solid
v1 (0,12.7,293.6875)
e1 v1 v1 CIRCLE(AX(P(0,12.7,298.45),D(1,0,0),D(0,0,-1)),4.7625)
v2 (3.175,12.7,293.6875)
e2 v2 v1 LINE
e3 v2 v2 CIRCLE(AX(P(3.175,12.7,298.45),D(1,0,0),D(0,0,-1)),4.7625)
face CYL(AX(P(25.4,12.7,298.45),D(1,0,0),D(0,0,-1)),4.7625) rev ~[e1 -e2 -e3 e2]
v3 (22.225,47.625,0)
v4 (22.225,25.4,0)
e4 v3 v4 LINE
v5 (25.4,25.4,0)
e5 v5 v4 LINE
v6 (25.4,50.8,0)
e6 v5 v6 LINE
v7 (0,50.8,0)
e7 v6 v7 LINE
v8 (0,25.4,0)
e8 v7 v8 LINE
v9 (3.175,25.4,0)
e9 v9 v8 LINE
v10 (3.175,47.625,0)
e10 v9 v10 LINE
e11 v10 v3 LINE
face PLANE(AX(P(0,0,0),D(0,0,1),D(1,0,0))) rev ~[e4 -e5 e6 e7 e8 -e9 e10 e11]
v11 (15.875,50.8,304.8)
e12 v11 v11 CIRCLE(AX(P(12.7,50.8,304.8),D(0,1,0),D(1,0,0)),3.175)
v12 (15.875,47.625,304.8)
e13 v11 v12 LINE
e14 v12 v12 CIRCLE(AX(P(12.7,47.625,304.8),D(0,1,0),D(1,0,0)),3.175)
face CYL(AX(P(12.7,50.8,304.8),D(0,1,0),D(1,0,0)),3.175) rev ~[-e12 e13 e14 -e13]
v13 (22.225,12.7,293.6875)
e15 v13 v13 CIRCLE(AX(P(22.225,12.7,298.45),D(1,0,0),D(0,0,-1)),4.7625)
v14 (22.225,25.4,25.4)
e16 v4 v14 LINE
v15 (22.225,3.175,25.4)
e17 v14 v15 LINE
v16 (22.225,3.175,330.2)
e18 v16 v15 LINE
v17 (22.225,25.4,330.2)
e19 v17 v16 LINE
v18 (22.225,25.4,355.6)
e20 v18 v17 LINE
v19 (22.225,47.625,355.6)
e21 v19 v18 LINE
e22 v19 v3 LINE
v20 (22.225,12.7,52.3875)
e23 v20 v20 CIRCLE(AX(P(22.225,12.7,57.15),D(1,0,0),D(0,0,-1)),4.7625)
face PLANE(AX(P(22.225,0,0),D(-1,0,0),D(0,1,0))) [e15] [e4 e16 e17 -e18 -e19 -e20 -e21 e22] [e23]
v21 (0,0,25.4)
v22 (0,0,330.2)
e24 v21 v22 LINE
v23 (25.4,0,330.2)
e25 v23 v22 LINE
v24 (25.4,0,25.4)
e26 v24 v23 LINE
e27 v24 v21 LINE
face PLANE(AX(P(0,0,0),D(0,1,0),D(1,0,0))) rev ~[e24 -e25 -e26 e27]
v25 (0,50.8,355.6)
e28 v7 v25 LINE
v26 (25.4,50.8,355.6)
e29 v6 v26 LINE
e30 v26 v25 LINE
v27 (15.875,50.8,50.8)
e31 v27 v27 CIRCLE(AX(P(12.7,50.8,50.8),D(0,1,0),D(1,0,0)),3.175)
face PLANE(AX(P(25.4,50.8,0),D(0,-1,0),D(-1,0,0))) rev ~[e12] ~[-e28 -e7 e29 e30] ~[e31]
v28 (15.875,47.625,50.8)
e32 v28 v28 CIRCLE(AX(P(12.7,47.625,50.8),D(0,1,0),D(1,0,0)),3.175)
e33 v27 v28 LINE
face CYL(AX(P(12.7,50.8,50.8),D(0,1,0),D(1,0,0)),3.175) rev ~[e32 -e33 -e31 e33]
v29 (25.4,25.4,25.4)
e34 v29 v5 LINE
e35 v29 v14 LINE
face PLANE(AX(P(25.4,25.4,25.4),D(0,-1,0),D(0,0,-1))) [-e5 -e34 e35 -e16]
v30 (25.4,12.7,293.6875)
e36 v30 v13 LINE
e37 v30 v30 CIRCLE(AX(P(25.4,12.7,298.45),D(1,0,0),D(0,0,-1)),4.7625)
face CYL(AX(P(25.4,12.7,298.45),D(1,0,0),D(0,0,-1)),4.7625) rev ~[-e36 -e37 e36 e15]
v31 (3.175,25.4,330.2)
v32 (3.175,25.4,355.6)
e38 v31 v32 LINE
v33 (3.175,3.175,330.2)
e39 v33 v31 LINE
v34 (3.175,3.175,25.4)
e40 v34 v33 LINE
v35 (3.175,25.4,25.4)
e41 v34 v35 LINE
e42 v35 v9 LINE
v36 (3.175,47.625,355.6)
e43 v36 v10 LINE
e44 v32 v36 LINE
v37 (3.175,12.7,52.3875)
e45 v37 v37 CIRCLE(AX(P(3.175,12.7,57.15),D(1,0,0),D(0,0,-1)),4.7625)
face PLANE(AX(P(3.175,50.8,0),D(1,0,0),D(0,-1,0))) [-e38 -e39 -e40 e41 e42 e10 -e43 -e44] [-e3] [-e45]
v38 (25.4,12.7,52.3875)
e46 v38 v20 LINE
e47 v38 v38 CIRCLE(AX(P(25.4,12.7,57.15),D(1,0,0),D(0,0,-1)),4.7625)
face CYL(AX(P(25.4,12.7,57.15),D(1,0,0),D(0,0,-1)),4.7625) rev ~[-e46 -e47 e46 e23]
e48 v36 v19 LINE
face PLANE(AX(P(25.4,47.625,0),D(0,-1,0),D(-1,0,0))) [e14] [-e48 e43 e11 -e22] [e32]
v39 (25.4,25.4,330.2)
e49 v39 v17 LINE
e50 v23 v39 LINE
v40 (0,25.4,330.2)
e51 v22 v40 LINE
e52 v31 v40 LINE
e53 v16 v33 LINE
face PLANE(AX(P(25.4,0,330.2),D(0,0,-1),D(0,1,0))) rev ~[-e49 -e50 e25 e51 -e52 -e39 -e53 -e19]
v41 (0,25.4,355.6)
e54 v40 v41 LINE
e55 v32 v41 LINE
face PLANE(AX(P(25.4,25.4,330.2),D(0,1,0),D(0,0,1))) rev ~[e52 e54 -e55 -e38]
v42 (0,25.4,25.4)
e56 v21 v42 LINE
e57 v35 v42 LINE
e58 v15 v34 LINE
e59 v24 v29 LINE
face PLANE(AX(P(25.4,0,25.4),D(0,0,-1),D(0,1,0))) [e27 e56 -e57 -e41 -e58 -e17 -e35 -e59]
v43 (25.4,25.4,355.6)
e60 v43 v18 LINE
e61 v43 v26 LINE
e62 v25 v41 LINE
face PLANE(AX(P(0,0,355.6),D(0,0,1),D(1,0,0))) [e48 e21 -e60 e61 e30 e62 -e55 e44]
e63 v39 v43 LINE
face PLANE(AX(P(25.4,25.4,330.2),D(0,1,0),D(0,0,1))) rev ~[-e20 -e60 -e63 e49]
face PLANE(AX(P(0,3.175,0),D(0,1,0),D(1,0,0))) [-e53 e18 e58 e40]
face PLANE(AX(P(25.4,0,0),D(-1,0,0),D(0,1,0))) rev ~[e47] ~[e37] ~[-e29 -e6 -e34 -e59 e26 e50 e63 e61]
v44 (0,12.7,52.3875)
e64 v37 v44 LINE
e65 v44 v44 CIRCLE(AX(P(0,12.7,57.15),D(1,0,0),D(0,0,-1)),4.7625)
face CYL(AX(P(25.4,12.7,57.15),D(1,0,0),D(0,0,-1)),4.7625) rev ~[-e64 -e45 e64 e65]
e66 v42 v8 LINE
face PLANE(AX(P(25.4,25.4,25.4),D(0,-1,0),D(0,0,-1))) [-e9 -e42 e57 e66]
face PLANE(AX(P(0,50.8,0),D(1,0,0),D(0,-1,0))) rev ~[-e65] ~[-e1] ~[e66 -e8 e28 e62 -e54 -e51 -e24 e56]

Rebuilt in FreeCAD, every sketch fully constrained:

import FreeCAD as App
import Part
import Sketcher
from FreeCAD import Vector
Q = App.Units.Quantity


def faces_at(feature, points):
    """Names of the faces that lie closest to the given points."""
    faces = feature.Shape.Faces
    near = lambda p: min(range(len(faces)), key=lambda i: faces[i].distToShape(Part.Vertex(*p))[0])
    return sorted({f"Face{near(p) + 1}" for p in points})


def add_polygon(sketch, points):
    """Adds a closed chain of lines whose ends are joined by coincident constraints."""
    first, n = sketch.GeometryCount, len(points)
    for a, b in zip(points, points[1:] + points[:1]):
        sketch.addGeometry(Part.LineSegment(App.Vector(*a, 0), App.Vector(*b, 0)), False)
    for i in range(n):
        sketch.addConstraint(Sketcher.Constraint("Coincident", first + i, 2, first + (i + 1) % n, 1))

doc = App.newDocument("Part")
body = doc.addObject("PartDesign::Body", "Body")

# Sketch on XY plane
sketch1 = body.newObject("Sketcher::SketchObject", "Sketch")
sketch1.AttachmentSupport = (doc.getObject("XY_Plane"), [""])
sketch1.MapMode = "FlatFace"
add_polygon(sketch1, [(0, 50.8), (0, 0), (25.4, 0), (25.4, 50.8)])  # lines 0-3
sketch1.addConstraint(Sketcher.Constraint("Vertical", 0))
sketch1.addConstraint(Sketcher.Constraint("Horizontal", 1))
sketch1.addConstraint(Sketcher.Constraint("Vertical", 2))
sketch1.addConstraint(Sketcher.Constraint("Horizontal", 3))
sketch1.addConstraint(Sketcher.Constraint("Coincident", 0, 2, -1, 1))
sketch1.addConstraint(Sketcher.Constraint("DistanceX", 1, 1, 1, 2, Q("1 in")))
sketch1.addConstraint(Sketcher.Constraint("DistanceY", 0, 2, 0, 1, Q("2 in")))
pad1 = body.newObject("PartDesign::Pad", "Pad")
pad1.Profile = sketch1
pad1.Length = Q("14 in")
doc.recompute()

thickness = body.newObject("PartDesign::Thickness", "Thickness")
thickness.Base = (pad1, faces_at(pad1, [(16.933, 16.933, 0), (8.467, 33.867, 355.6)]))
thickness.Value = Q("0.125 in")
thickness.Reversed = True
thickness.Join = "Intersection"

# Sketch on YZ plane
sketch2 = body.newObject("Sketcher::SketchObject", "Sketch001")
sketch2.AttachmentSupport = (doc.getObject("YZ_Plane"), [""])
sketch2.MapMode = "FlatFace"
sketch2.AttachmentOffset = App.Placement(Vector(0, 0, 1 * 25.4), App.Rotation())
add_polygon(sketch2, [(25.4, 355.6), (0, 355.6), (0, 330.2), (25.4, 330.2)])  # lines 0-3
add_polygon(sketch2, [(0, 25.4), (0, 0), (25.4, 0), (25.4, 25.4)])  # lines 4-7
sketch2.addConstraint(Sketcher.Constraint("Horizontal", 0))
sketch2.addConstraint(Sketcher.Constraint("Vertical", 1))
sketch2.addConstraint(Sketcher.Constraint("Horizontal", 2))
sketch2.addConstraint(Sketcher.Constraint("Vertical", 3))
sketch2.addConstraint(Sketcher.Constraint("Vertical", 4))
sketch2.addConstraint(Sketcher.Constraint("Horizontal", 5))
sketch2.addConstraint(Sketcher.Constraint("Vertical", 6))
sketch2.addConstraint(Sketcher.Constraint("Horizontal", 7))
sketch2.addConstraint(Sketcher.Constraint("Coincident", 4, 2, -1, 1))
sketch2.addConstraint(Sketcher.Constraint("PointOnObject", 0, 2, -2))
sketch2.addConstraint(Sketcher.Constraint("Vertical", 3, 2, 5, 2))
sketch2.addConstraint(Sketcher.Constraint("Equal", 7, 1))
sketch2.addConstraint(Sketcher.Constraint("Equal", 3, 4))
sketch2.addConstraint(Sketcher.Constraint("DistanceX", 0, 2, 0, 1, Q("1 in")))
sketch2.addConstraint(Sketcher.Constraint("DistanceY", -1, 1, 0, 2, Q("14 in")))
pocket1 = body.newObject("PartDesign::Pocket", "Pocket")
pocket1.Profile = sketch2
pocket1.Type = "ThroughAll"

# Sketch on YZ plane
sketch3 = body.newObject("Sketcher::SketchObject", "Sketch002")
sketch3.AttachmentSupport = (doc.getObject("YZ_Plane"), [""])
sketch3.MapMode = "FlatFace"
sketch3.AttachmentOffset = App.Placement(Vector(0, 0, 1 * 25.4), App.Rotation())
sketch3.addGeometry(Part.Circle(Vector(12.7, 298.45, 0), Vector(0, 0, 1), 4.7625), False)
sketch3.addGeometry(Part.Circle(Vector(12.7, 57.15, 0), Vector(0, 0, 1), 4.7625), False)
sketch3.addConstraint(Sketcher.Constraint("Equal", 0, 1))
sketch3.addConstraint(Sketcher.Constraint("Vertical", 0, 3, 1, 3))
sketch3.addConstraint(Sketcher.Constraint("Diameter", 0, Q("0.375 in")))
sketch3.addConstraint(Sketcher.Constraint("DistanceX", -1, 1, 0, 3, Q("0.5 in")))
sketch3.addConstraint(Sketcher.Constraint("DistanceY", 1, 3, 0, 3, Q("9.5 in")))
sketch3.addConstraint(Sketcher.Constraint("DistanceY", -1, 1, 0, 3, Q("11.75 in")))
pocket2 = body.newObject("PartDesign::Pocket", "Pocket001")
pocket2.Profile = sketch3
pocket2.Type = "ThroughAll"

# Sketch on XZ plane
sketch4 = body.newObject("Sketcher::SketchObject", "Sketch003")
sketch4.AttachmentSupport = (doc.getObject("XZ_Plane"), [""])
sketch4.MapMode = "FlatFace"
sketch4.AttachmentOffset = App.Placement(Vector(0, 0, -2 * 25.4), App.Rotation())
sketch4.addGeometry(Part.Circle(Vector(12.7, 50.8, 0), Vector(0, 0, 1), 3.175), False)
sketch4.addGeometry(Part.Circle(Vector(12.7, 304.8, 0), Vector(0, 0, 1), 3.175), False)
sketch4.addConstraint(Sketcher.Constraint("Equal", 0, 1))
sketch4.addConstraint(Sketcher.Constraint("Vertical", 0, 3, 1, 3))
sketch4.addConstraint(Sketcher.Constraint("Diameter", 0, Q("0.25 in")))
sketch4.addConstraint(Sketcher.Constraint("DistanceY", -1, 1, 0, 3, Q("2 in")))
sketch4.addConstraint(Sketcher.Constraint("DistanceY", 0, 3, 1, 3, Q("10 in")))
sketch4.addConstraint(Sketcher.Constraint("DistanceX", -1, 1, 0, 3, Q("0.5 in")))
pocket3 = body.newObject("PartDesign::Pocket", "Pocket002")
pocket3.Profile = sketch4
pocket3.Length = Q("0.125 in")
pocket3.Reversed = True

doc.recompute()
